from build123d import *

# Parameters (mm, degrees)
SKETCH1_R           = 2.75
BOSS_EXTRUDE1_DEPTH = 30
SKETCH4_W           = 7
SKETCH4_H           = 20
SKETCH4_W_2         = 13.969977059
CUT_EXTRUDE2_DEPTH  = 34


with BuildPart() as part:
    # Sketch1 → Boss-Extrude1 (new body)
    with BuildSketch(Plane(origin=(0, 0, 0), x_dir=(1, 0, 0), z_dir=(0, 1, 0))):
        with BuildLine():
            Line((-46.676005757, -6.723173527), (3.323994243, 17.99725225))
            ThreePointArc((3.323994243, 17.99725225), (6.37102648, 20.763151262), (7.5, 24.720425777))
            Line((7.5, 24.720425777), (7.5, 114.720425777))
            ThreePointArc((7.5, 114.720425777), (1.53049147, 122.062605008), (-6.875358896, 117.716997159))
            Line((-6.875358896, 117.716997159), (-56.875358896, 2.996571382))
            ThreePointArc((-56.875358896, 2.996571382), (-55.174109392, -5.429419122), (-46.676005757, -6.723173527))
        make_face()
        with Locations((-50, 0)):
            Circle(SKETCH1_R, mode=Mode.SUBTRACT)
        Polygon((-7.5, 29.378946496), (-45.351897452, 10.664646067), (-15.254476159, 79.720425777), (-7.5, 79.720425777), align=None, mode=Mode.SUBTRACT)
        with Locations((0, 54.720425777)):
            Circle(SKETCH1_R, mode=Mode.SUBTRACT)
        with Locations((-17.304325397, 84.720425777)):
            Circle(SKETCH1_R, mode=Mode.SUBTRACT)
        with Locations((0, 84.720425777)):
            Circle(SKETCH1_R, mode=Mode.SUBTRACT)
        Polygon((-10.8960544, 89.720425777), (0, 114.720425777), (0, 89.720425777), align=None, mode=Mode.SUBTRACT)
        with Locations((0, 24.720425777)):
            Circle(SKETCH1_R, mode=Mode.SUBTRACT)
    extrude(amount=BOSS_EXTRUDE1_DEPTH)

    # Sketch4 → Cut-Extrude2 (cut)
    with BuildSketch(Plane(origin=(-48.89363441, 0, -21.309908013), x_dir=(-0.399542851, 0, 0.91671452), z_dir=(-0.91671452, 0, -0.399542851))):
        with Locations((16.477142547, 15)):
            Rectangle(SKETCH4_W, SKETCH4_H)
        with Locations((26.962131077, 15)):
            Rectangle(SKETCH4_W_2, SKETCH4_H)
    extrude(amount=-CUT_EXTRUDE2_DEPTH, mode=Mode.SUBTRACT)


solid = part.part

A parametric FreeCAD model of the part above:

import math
import FreeCAD as App
import Part
import Sketcher

V = App.Vector
Q = App.Units.Quantity


def add_polygon(sketch, points):
    """Adds a closed chain of lines whose ends are joined by coincident constraints."""
    first, n = sketch.GeometryCount, len(points)
    for a, b in zip(points, points[1:] + points[:1]):
        sketch.addGeometry(Part.LineSegment(App.Vector(*a, 0), App.Vector(*b, 0)), False)
    for i in range(n):
        sketch.addConstraint(Sketcher.Constraint("Coincident", first + i, 2, first + (i + 1) % n, 1))

doc = App.newDocument("Part")
body = doc.addObject("PartDesign::Body", "Body")

sketch1 = body.newObject("Sketcher::SketchObject", "Sketch")
sketch1.AttachmentSupport = (doc.getObject("XZ_Plane"), [""])
sketch1.MapMode = "FlatFace"
sketch1.addGeometry(Part.LineSegment(V(-46.7, 6.7, 0), V(3.3, -18, 0)), False)
sketch1.addGeometry(Part.ArcOfCircle(Part.Circle(V(0, -24.7, 0), V(0, 0, 1), 7.5), math.radians(0), math.radians(64)), False)
sketch1.addGeometry(Part.LineSegment(V(7.5, -24.7, 0), V(7.5, -114.7, 0)), False)
sketch1.addGeometry(Part.ArcOfCircle(Part.Circle(V(0, -114.7, 0), V(0, 0, 1), 7.5), math.radians(-156), math.radians(0)), False)
sketch1.addGeometry(Part.LineSegment(V(-6.9, -117.7, 0), V(-56.9, -3, 0)), False)
sketch1.addGeometry(Part.ArcOfCircle(Part.Circle(V(-50, 0, 0), V(0, 0, 1), 7.5), math.radians(64), math.radians(204)), False)
sketch1.addGeometry(Part.Circle(V(-50, 0, 0), V(0, 0, 1), 2.8), False)
add_polygon(sketch1, [(-7.5, -79.7), (-7.5, -29.4), (-45.4, -10.7), (-15.3, -79.7)])
sketch1.addGeometry(Part.Circle(V(0, -24.7, 0), V(0, 0, 1), 2.8), False)
sketch1.addGeometry(Part.Circle(V(0, -54.7, 0), V(0, 0, 1), 2.8), False)
sketch1.addGeometry(Part.Circle(V(-17.3, -84.7, 0), V(0, 0, 1), 2.8), False)
sketch1.addGeometry(Part.Circle(V(0, -84.7, 0), V(0, 0, 1), 2.8), False)
add_polygon(sketch1, [(0, -89.7), (-10.9, -89.7), (0, -114.7)])
sketch1.addConstraint([
    Sketcher.Constraint("Tangent", 0, 2, 1, 2),
    Sketcher.Constraint("Tangent", 1, 1, 2, 1),
    Sketcher.Constraint("Tangent", 2, 2, 3, 2),
    Sketcher.Constraint("Tangent", 3, 1, 4, 1),
    Sketcher.Constraint("Tangent", 4, 2, 5, 2),
    Sketcher.Constraint("Tangent", 5, 1, 0, 1),
    Sketcher.Constraint("Vertical", 2),
    Sketcher.Constraint("Vertical", 7),
    Sketcher.Constraint("Horizontal", 10),
    Sketcher.Constraint("Horizontal", 15),
    Sketcher.Constraint("Vertical", 17),
    Sketcher.Constraint("Coincident", 6, 3, 5, 3),
    Sketcher.Constraint("Coincident", 11, 3, 1, 3),
    Sketcher.Constraint("Coincident", 16, 2, 3, 3),
    Sketcher.Constraint("Equal", 1, 3),
    Sketcher.Constraint("Equal", 3, 5),
    Sketcher.Constraint("Equal", 6, 11),
    Sketcher.Constraint("Equal", 11, 12),
    Sketcher.Constraint("Equal", 12, 13),
    Sketcher.Constraint("Equal", 13, 14),
    Sketcher.Constraint("PointOnObject", 1, 3, -2),
    Sketcher.Constraint("PointOnObject", 5, 3, -1),
    Sketcher.Constraint("PointOnObject", 12, 3, -2),
    Sketcher.Constraint("PointOnObject", 14, 3, -2),
    Sketcher.Constraint("Parallel", 0, 8),
    Sketcher.Constraint("Parallel", 4, 9),
    Sketcher.Constraint("Parallel", 9, 16),
    Sketcher.Constraint("Horizontal", 13, 3, 14, 3),
    Sketcher.Constraint("Diameter", 6, Q("5.5 mm")),
    Sketcher.Constraint("Radius", 1, Q("7.5 mm")),
    Sketcher.Constraint("DistanceY", 2, 2, 2, 1, Q("90 mm")),
    Sketcher.Constraint("DistanceY", 17, 1, 17, 2, Q("25 mm")),
    Sketcher.Constraint("DistanceX", 5, 3, -1, 1, Q("50 mm")),
    Sketcher.Constraint("DistanceY", 12, 3, 1, 3, Q("30 mm")),
    Sketcher.Constraint("DistanceY", 3, 3, 13, 3, Q("30 mm")),
    Sketcher.Constraint("DistanceX", 7, 2, 1, 1, Q("15 mm")),
    Sketcher.Constraint("DistanceY", 13, 3, 9, 2, Q("5 mm")),
    Sketcher.Constraint("DistanceY", 7, 1, 7, 2, Q("50.341479 mm")),
    Sketcher.Constraint("DistanceY", 1, 3, 5, 1, Q("31.443599 mm")),
    Sketcher.Constraint("DistanceY", 7, 2, 8, 2, Q("18.7143 mm")),
    Sketcher.Constraint("DistanceX", 13, 3, 9, 2, Q("2.049849 mm")),
])
pad1 = body.newObject("PartDesign::Pad", "Pad")
pad1.Profile = sketch1
pad1.Length = 30
pad1.Reversed = True

sketch2 = body.newObject("Sketcher::SketchObject", "Sketch001")
sketch2.Placement = App.Placement(V(-48.893634, 0, -21.309908), App.Rotation(V(-0.399542851, 0, 0.91671452), V(0, 1.000000001, 0), V(-0.91671452, 0, -0.399542851), "ZXY"))
add_polygon(sketch2, [(13, 25), (13, 5), (34, 5), (34, 25)])
sketch2.addConstraint([
    Sketcher.Constraint("Vertical", 0),
    Sketcher.Constraint("Horizontal", 1),
    Sketcher.Constraint("Vertical", 2),
    Sketcher.Constraint("Horizontal", 3),
    Sketcher.Constraint("DistanceY", 0, 2, 0, 1, Q("20 mm")),
    Sketcher.Constraint("DistanceY", -1, 1, 0, 2, Q("5 mm")),
    Sketcher.Constraint("DistanceX", 1, 1, 1, 2, Q("20.969977 mm")),
    Sketcher.Constraint("DistanceX", -1, 1, 1, 2, Q("33.94712 mm")),
])
pocket1 = body.newObject("PartDesign::Pocket", "Pocket")
pocket1.Profile = sketch2
pocket1.Length = 34

doc.recompute()
